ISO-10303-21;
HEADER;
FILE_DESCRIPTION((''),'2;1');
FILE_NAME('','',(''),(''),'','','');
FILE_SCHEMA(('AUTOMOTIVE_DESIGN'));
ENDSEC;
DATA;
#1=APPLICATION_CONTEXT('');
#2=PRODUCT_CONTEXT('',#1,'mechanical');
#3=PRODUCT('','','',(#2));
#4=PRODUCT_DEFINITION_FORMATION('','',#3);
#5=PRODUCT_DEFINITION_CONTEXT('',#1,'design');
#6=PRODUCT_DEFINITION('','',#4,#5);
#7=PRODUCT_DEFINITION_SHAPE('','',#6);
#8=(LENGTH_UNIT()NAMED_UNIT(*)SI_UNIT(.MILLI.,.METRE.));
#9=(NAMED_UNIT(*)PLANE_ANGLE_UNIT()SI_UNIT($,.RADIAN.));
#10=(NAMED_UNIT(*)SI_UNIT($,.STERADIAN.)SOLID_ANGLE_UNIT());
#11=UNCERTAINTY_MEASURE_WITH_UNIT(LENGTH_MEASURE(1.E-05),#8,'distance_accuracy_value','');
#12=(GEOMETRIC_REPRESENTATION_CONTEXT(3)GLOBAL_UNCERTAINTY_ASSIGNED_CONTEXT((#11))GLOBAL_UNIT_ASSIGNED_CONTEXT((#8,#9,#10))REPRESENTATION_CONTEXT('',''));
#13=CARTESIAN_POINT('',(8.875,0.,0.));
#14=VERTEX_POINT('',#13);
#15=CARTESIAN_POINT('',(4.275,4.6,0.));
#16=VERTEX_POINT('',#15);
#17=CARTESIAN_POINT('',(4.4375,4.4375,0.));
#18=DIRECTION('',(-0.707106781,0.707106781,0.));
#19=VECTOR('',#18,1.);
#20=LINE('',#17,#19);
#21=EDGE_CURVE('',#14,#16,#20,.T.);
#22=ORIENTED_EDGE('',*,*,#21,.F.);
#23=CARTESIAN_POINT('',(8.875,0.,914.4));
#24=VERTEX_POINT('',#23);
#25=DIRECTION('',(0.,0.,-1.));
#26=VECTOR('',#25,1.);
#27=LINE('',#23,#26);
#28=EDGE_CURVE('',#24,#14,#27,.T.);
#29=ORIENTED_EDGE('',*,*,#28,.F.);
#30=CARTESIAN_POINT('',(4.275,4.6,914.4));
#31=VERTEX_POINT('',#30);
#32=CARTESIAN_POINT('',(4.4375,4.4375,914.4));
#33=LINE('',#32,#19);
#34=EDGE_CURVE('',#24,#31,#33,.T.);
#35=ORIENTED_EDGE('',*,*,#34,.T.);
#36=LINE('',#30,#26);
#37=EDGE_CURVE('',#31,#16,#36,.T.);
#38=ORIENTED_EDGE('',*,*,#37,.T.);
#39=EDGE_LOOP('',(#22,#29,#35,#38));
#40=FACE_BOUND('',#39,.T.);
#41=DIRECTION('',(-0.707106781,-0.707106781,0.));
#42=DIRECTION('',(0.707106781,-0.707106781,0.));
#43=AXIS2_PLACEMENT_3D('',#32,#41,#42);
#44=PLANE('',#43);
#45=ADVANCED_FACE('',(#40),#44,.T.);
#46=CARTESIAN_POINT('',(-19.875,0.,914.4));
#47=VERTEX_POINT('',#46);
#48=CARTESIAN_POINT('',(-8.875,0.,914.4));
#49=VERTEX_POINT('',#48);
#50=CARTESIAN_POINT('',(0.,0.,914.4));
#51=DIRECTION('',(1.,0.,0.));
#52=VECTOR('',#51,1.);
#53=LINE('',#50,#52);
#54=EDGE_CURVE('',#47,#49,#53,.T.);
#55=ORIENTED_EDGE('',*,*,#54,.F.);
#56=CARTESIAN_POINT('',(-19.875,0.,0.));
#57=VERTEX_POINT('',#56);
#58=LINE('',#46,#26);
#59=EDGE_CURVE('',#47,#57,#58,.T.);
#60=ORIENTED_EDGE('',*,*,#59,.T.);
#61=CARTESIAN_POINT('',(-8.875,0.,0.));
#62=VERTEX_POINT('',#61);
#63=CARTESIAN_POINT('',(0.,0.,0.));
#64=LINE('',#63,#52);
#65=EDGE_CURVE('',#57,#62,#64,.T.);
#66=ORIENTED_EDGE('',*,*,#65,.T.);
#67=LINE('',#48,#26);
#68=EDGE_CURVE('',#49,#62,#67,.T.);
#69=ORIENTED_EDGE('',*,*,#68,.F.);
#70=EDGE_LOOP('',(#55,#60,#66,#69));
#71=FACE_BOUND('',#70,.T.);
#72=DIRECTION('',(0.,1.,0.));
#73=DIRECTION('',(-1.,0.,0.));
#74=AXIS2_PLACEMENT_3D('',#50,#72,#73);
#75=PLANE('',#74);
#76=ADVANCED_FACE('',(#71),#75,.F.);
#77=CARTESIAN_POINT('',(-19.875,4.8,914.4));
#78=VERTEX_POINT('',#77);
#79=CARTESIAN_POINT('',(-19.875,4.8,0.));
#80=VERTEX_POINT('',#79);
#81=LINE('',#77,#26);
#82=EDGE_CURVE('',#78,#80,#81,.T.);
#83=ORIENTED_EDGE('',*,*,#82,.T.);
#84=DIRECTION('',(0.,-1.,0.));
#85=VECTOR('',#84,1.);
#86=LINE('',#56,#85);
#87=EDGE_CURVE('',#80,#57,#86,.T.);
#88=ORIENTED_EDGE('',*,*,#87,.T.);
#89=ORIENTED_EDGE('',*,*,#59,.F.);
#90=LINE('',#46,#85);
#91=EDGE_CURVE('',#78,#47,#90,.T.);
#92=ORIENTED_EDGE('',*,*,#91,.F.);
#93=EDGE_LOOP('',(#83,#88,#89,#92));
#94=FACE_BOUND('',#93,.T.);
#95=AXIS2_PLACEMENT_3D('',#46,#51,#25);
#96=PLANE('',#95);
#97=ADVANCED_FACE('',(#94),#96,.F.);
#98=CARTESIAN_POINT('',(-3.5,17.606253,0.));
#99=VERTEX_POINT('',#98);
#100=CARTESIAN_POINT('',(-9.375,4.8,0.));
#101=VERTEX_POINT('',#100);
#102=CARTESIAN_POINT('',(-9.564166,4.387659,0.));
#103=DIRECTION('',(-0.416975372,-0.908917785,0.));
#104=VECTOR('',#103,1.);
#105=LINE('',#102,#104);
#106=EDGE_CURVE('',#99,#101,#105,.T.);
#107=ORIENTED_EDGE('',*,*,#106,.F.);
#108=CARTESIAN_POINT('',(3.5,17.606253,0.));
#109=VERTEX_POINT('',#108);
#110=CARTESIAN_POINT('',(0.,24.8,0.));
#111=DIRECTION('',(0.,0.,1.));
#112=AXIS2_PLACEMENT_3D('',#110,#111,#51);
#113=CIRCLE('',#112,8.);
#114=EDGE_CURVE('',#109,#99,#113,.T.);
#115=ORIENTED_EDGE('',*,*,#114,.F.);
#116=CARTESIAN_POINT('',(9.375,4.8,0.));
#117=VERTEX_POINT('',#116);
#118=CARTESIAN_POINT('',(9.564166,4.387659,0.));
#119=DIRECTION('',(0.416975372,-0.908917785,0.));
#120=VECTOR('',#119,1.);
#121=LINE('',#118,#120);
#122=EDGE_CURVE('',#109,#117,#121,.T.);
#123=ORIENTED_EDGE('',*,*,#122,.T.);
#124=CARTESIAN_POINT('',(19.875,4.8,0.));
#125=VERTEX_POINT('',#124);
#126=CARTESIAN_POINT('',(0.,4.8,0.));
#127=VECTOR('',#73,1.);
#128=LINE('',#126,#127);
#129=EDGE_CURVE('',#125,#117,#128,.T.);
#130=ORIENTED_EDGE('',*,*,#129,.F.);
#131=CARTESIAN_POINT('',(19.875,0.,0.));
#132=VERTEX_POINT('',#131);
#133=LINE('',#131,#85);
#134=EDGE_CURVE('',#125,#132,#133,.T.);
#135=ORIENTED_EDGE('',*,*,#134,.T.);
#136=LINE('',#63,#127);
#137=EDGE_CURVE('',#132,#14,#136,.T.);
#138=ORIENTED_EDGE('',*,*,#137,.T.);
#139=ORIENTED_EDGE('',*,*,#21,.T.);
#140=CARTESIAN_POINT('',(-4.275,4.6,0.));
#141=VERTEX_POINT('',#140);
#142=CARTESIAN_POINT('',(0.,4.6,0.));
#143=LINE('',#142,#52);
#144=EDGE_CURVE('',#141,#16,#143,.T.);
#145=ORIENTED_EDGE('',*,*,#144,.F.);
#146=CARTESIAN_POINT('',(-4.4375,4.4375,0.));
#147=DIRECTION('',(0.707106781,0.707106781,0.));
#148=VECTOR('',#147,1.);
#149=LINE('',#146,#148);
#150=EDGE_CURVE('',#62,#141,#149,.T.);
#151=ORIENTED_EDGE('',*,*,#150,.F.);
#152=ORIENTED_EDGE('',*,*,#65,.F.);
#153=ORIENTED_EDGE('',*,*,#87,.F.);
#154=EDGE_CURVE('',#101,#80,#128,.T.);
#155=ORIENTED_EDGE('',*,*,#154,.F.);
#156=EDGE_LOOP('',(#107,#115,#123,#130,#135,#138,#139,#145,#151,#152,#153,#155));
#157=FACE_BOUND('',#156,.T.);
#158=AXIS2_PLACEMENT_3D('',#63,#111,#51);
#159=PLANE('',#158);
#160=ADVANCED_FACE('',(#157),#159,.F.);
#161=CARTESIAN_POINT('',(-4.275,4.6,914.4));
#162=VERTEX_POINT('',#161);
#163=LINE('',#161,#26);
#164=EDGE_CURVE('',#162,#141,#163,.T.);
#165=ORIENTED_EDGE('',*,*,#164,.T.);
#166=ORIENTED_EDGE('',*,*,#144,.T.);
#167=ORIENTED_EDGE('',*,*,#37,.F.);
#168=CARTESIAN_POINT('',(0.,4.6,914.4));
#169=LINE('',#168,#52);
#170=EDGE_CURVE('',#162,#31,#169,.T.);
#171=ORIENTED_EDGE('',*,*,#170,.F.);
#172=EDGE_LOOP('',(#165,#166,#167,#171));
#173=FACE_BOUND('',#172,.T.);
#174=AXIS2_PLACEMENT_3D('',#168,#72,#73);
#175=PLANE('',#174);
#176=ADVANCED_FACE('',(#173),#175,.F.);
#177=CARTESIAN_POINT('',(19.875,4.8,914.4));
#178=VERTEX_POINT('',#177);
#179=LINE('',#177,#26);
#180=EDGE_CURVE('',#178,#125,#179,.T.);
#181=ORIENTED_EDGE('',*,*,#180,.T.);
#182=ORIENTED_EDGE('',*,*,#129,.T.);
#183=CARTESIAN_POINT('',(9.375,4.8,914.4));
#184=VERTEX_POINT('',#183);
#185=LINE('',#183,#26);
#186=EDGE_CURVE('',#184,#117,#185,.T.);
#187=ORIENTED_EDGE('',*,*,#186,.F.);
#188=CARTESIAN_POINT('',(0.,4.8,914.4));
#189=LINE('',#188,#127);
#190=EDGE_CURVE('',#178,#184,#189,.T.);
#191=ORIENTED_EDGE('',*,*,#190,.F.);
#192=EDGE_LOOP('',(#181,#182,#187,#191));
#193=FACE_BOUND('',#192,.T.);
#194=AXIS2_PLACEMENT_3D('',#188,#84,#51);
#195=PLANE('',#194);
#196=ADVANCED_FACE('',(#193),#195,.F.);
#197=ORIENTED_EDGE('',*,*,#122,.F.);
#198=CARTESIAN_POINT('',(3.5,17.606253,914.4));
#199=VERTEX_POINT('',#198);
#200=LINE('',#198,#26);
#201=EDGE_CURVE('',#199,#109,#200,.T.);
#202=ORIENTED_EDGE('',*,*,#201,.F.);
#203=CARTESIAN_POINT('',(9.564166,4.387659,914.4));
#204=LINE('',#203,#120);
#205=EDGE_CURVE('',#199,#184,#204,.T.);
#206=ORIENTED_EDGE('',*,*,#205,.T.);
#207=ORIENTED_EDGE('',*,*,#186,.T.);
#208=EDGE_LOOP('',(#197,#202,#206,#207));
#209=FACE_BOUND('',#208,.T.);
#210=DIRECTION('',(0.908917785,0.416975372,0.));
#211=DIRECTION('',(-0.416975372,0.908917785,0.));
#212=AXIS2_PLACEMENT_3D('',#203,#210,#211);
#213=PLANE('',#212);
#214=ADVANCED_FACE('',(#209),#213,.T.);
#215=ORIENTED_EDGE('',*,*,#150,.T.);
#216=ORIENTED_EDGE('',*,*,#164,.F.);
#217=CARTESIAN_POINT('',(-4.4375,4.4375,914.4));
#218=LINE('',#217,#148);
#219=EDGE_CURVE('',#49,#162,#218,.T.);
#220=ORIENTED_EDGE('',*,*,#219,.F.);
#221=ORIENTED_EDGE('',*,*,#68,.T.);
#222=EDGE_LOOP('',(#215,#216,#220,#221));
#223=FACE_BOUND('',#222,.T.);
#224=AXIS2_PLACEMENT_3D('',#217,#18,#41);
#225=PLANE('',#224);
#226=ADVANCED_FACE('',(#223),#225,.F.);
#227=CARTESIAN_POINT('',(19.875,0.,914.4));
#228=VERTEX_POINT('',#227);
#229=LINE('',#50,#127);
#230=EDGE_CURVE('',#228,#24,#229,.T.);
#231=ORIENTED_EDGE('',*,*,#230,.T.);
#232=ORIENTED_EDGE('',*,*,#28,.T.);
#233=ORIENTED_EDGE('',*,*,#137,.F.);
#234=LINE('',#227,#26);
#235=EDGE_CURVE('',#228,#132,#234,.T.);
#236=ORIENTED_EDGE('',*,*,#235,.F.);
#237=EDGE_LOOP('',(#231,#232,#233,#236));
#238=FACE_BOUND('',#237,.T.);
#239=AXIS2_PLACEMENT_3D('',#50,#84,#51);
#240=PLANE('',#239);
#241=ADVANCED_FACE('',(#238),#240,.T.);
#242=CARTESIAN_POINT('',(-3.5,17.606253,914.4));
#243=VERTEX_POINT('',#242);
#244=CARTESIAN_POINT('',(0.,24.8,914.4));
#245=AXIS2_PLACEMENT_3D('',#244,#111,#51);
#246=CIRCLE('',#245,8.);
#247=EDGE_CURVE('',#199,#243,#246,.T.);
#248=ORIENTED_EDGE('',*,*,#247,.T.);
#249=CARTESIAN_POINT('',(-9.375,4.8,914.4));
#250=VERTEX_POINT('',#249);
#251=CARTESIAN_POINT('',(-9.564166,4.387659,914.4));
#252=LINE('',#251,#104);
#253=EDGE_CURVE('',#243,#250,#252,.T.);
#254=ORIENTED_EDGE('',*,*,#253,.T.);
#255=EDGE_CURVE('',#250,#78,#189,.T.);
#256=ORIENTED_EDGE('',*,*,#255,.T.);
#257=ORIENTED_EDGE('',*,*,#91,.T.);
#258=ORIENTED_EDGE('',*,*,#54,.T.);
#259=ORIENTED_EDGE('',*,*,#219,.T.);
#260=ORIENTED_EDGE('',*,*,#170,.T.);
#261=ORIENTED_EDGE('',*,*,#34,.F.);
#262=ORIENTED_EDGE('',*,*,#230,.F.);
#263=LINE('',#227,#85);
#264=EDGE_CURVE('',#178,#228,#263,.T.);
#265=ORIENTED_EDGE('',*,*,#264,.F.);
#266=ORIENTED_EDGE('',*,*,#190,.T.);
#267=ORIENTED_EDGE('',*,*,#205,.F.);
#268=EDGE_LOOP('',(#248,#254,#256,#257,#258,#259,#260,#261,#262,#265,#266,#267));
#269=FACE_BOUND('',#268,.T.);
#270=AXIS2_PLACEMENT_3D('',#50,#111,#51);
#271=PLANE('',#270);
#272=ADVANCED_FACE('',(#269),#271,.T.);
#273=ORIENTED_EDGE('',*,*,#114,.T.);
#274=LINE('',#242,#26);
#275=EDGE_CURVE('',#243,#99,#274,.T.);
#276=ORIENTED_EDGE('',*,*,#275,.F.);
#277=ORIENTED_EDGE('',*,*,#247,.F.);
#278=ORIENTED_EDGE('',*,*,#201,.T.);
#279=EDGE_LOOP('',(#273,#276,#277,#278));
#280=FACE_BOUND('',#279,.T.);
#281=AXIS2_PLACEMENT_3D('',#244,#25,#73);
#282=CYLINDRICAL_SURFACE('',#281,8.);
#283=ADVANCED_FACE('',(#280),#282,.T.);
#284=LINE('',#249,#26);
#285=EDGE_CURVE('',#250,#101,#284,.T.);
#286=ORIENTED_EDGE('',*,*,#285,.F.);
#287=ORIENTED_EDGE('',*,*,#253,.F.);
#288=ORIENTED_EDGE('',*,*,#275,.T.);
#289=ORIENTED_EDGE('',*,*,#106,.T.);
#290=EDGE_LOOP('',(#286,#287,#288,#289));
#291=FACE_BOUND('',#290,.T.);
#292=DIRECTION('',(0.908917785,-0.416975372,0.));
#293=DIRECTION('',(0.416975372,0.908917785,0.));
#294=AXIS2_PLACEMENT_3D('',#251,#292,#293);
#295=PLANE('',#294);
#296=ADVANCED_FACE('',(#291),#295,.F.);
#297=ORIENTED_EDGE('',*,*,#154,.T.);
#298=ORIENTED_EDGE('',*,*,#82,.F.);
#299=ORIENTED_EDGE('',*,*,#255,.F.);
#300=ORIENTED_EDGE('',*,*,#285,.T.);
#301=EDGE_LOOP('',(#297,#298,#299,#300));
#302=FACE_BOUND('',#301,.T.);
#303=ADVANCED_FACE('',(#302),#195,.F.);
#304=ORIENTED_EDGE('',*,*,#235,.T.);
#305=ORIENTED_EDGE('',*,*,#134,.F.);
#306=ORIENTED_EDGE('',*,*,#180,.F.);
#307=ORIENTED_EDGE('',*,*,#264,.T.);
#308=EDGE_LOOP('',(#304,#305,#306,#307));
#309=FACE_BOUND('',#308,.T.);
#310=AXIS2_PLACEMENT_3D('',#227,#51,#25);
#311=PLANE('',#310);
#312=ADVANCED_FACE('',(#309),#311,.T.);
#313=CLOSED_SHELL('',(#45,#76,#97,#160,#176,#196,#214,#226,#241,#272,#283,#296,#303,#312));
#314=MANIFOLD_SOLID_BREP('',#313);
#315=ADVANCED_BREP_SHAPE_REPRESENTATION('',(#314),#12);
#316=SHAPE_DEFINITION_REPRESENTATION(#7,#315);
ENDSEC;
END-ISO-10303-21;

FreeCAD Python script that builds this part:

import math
import FreeCAD as App
import Part
import Sketcher
Q = App.Units.Quantity

doc = App.newDocument("Part")
body = doc.addObject("PartDesign::Body", "Body")

# Sketch on XY plane
sketch1 = body.newObject("Sketcher::SketchObject", "Sketch")
sketch1.AttachmentSupport = (doc.getObject("XY_Plane"), [""])
sketch1.MapMode = "FlatFace"
sketch1.addGeometry(Part.LineSegment(App.Vector(9.4, 4.8, 0), App.Vector(3.5, 17.6, 0)), False)
sketch1.addGeometry(Part.ArcOfCircle(Part.Circle(App.Vector(0, 24.8, 0), App.Vector(0, 0, 1), 8), math.radians(-64), math.radians(244)), False)
sketch1.addGeometry(Part.LineSegment(App.Vector(-3.5, 17.6, 0), App.Vector(-9.4, 4.8, 0)), False)
sketch1.addGeometry(Part.LineSegment(App.Vector(-9.4, 4.8, 0), App.Vector(-19.9, 4.8, 0)), False)
sketch1.addGeometry(Part.LineSegment(App.Vector(-19.9, 4.8, 0), App.Vector(-19.9, 0, 0)), False)
sketch1.addGeometry(Part.LineSegment(App.Vector(-19.9, 0, 0), App.Vector(-8.9, 0, 0)), False)
sketch1.addGeometry(Part.LineSegment(App.Vector(-8.9, 0, 0), App.Vector(-4.3, 4.6, 0)), False)
sketch1.addGeometry(Part.LineSegment(App.Vector(-4.3, 4.6, 0), App.Vector(4.3, 4.6, 0)), False)
sketch1.addGeometry(Part.LineSegment(App.Vector(4.3, 4.6, 0), App.Vector(8.9, 0, 0)), False)
sketch1.addGeometry(Part.LineSegment(App.Vector(8.9, 0, 0), App.Vector(19.9, 0, 0)), False)
sketch1.addGeometry(Part.LineSegment(App.Vector(19.9, 0, 0), App.Vector(19.9, 4.8, 0)), False)
sketch1.addGeometry(Part.LineSegment(App.Vector(19.9, 4.8, 0), App.Vector(9.4, 4.8, 0)), False)
sketch1.addConstraint(Sketcher.Constraint("Coincident", 0, 2, 1, 1))
sketch1.addConstraint(Sketcher.Constraint("Coincident", 1, 2, 2, 1))
sketch1.addConstraint(Sketcher.Constraint("Coincident", 2, 2, 3, 1))
sketch1.addConstraint(Sketcher.Constraint("Coincident", 3, 2, 4, 1))
sketch1.addConstraint(Sketcher.Constraint("Coincident", 4, 2, 5, 1))
sketch1.addConstraint(Sketcher.Constraint("Coincident", 5, 2, 6, 1))
sketch1.addConstraint(Sketcher.Constraint("Coincident", 6, 2, 7, 1))
sketch1.addConstraint(Sketcher.Constraint("Coincident", 7, 2, 8, 1))
sketch1.addConstraint(Sketcher.Constraint("Coincident", 8, 2, 9, 1))
sketch1.addConstraint(Sketcher.Constraint("Coincident", 9, 2, 10, 1))
sketch1.addConstraint(Sketcher.Constraint("Coincident", 10, 2, 11, 1))
sketch1.addConstraint(Sketcher.Constraint("Coincident", 11, 2, 0, 1))
sketch1.addConstraint(Sketcher.Constraint("Horizontal", 3))
sketch1.addConstraint(Sketcher.Constraint("Vertical", 4))
sketch1.addConstraint(Sketcher.Constraint("Horizontal", 5))
sketch1.addConstraint(Sketcher.Constraint("Horizontal", 7))
sketch1.addConstraint(Sketcher.Constraint("Horizontal", 9))
sketch1.addConstraint(Sketcher.Constraint("Vertical", 10))
sketch1.addConstraint(Sketcher.Constraint("Horizontal", 11))
sketch1.addConstraint(Sketcher.Constraint("Symmetric", 5, 2, 8, 2, -1, 1))
sketch1.addConstraint(Sketcher.Constraint("Symmetric", 0, 2, 1, 2, -2))
sketch1.addConstraint(Sketcher.Constraint("Symmetric", 4, 2, 9, 2, -2))
sketch1.addConstraint(Sketcher.Constraint("Symmetric", 2, 2, 11, 2, -2))
sketch1.addConstraint(Sketcher.Constraint("Perpendicular", 6, 8))
sketch1.addConstraint(Sketcher.Constraint("Equal", 6, 8))
sketch1.addConstraint(Sketcher.Constraint("Radius", 1, Q("8 mm")))
sketch1.addConstraint(Sketcher.Constraint("DistanceX", 5, 1, 5, 2, Q("11 mm")))
sketch1.addConstraint(Sketcher.Constraint("DistanceX", 3, 2, 3, 1, Q("10.5 mm")))
sketch1.addConstraint(Sketcher.Constraint("DistanceY", 4, 2, 4, 1, Q("4.8 mm")))
sketch1.addConstraint(Sketcher.Constraint("DistanceX", 1, 2, 0, 2, Q("7 mm")))
sketch1.addConstraint(Sketcher.Constraint("DistanceY", 2, 2, 1, 3, Q("20 mm")))
sketch1.addConstraint(Sketcher.Constraint("DistanceX", 7, 1, 7, 2, Q("8.55 mm")))
sketch1.addConstraint(Sketcher.Constraint("DistanceY", -1, 1, 6, 2, Q("4.6 mm")))
pad1 = body.newObject("PartDesign::Pad", "Pad")
pad1.Profile = sketch1
pad1.Length = 914.4

doc.recompute()
